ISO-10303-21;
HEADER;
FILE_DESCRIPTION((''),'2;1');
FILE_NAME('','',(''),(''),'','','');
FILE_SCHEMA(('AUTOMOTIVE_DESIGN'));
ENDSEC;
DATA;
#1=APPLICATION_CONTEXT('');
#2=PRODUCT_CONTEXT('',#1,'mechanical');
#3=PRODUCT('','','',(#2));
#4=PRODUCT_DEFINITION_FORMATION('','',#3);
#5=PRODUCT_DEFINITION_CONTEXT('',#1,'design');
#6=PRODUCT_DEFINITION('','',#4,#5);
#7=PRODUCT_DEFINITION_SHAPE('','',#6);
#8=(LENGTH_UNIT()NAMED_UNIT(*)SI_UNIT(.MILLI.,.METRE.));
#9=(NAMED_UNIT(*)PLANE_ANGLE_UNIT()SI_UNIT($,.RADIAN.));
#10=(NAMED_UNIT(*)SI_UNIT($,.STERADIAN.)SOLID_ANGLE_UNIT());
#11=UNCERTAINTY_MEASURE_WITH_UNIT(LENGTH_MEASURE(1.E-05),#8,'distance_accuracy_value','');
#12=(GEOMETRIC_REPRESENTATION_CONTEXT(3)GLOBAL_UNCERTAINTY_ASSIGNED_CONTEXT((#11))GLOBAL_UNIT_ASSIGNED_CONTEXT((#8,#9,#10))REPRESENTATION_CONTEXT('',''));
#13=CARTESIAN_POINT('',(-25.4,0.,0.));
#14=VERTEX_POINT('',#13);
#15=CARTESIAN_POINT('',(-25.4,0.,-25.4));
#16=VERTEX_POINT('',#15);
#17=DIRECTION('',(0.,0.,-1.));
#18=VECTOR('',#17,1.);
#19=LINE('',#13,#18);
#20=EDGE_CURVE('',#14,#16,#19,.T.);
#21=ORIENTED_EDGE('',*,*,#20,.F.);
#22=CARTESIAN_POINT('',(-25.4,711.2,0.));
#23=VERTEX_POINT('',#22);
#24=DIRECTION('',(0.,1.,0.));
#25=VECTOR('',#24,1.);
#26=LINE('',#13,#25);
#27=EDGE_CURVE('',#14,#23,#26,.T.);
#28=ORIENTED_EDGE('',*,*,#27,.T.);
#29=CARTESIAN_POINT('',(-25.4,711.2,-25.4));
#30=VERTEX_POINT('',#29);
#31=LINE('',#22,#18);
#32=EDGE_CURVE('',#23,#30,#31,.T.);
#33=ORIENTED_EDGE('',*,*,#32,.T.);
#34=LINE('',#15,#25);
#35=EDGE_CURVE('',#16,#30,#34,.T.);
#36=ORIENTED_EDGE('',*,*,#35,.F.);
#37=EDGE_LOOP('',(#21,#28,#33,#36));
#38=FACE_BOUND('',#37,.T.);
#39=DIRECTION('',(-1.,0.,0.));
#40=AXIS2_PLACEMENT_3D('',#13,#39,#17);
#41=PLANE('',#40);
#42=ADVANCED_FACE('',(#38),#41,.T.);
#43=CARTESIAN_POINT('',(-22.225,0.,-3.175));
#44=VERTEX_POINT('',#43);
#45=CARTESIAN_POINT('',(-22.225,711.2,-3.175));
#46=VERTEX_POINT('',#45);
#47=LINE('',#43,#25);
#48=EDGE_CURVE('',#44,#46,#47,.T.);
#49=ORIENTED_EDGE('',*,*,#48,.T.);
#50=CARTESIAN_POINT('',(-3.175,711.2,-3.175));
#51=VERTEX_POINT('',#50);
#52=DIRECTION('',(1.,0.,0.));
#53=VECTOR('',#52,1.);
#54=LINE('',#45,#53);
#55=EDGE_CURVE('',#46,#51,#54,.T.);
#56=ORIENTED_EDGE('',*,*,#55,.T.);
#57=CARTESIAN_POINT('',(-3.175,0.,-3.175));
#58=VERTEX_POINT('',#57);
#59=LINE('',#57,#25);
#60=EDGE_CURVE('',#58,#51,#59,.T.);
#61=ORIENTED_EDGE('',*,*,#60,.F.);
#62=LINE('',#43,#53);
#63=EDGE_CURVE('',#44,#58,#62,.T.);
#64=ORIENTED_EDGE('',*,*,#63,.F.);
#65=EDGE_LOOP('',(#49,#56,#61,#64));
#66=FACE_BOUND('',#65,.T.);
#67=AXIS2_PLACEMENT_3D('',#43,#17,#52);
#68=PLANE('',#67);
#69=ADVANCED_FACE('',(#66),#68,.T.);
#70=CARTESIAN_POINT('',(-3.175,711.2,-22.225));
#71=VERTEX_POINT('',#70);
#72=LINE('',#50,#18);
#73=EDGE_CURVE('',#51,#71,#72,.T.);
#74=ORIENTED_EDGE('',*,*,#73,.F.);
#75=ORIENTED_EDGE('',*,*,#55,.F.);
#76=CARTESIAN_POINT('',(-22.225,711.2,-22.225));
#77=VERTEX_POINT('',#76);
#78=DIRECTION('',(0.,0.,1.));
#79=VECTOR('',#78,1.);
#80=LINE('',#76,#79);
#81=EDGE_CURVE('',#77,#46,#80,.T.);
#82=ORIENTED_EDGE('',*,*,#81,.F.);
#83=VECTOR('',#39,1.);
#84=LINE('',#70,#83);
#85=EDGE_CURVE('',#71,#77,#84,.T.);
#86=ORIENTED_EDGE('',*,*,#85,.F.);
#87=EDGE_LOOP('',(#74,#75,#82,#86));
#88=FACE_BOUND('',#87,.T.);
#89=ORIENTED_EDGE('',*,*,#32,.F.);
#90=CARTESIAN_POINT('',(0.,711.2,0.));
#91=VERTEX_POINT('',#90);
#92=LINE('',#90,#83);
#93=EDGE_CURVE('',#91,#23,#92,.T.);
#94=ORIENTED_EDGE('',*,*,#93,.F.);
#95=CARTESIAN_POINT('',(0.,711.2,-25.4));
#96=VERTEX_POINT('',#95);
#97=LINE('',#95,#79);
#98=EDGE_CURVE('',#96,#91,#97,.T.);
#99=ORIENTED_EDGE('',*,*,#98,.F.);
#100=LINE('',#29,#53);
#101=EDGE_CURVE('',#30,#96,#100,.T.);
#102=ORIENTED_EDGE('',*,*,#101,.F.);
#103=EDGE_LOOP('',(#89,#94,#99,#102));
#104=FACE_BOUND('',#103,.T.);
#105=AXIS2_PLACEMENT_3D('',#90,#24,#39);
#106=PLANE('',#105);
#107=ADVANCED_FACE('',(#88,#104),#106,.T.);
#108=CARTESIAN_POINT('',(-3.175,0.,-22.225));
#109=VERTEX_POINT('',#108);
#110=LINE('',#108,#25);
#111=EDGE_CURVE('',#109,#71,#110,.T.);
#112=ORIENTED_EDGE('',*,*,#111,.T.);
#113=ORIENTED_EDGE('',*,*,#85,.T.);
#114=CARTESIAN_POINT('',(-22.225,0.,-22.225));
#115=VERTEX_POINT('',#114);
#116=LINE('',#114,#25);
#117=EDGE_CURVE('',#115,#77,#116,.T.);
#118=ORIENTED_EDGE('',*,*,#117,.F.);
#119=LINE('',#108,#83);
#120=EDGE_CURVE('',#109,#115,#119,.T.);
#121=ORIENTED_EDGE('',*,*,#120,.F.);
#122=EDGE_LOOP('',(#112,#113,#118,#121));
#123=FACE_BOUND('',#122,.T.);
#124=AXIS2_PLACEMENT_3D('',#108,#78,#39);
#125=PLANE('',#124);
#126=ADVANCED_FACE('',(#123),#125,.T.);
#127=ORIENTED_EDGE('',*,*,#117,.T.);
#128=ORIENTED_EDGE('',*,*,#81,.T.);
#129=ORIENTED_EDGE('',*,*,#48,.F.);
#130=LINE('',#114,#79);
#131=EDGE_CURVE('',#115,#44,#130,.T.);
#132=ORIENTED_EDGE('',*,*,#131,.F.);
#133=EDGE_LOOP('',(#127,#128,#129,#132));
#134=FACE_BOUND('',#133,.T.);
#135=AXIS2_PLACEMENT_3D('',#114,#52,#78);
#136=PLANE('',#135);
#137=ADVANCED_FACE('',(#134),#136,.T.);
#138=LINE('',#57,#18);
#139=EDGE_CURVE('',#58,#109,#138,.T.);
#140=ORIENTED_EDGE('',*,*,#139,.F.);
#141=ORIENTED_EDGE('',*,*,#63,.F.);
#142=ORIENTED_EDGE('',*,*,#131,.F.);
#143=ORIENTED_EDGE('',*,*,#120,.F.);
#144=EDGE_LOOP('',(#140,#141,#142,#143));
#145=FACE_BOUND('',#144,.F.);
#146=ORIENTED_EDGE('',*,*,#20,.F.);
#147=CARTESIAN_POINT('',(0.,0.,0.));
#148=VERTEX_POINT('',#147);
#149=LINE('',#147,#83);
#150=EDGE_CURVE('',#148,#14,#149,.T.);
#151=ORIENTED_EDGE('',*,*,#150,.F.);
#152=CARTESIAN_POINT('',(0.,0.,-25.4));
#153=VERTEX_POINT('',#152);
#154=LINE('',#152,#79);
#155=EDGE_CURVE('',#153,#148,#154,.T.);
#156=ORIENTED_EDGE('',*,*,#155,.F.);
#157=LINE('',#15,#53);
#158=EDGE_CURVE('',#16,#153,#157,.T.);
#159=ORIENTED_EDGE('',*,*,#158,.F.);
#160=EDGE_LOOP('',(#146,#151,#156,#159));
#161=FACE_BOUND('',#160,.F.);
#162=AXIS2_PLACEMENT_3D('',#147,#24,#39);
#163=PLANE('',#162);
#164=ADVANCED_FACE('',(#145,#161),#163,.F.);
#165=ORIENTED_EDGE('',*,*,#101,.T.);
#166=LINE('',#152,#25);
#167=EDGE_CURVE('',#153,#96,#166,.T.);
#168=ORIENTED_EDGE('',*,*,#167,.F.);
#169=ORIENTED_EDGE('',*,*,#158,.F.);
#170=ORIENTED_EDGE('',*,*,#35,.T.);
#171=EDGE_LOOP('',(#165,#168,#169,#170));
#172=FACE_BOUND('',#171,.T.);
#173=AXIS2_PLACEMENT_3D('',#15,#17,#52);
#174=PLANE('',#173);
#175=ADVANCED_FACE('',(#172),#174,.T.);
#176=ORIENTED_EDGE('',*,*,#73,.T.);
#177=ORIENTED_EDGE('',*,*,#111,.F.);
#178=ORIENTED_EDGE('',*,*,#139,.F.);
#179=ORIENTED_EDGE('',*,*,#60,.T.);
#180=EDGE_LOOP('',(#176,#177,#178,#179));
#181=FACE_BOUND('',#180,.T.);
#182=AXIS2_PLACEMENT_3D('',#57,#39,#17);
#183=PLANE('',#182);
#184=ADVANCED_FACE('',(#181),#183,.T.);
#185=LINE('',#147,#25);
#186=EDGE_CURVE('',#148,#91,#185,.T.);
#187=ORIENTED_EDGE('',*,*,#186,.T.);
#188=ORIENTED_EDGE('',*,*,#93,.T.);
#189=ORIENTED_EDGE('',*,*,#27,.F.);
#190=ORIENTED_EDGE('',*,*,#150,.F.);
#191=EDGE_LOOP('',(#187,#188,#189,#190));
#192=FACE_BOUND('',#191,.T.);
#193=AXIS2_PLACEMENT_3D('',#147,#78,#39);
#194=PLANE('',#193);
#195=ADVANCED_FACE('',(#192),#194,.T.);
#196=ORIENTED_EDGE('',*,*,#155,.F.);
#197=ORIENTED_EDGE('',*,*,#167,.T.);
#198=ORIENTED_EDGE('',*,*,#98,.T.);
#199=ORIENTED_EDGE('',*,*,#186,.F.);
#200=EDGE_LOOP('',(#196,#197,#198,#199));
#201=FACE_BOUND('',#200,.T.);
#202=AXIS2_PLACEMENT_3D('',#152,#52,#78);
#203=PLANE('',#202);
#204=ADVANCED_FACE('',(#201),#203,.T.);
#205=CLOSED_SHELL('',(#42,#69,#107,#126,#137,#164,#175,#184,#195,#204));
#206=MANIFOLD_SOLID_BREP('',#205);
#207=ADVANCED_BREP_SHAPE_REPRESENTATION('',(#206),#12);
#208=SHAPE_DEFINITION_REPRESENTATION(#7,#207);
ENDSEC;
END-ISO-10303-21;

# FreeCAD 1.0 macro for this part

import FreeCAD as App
import Part
import Sketcher
Q = App.Units.Quantity

doc = App.newDocument("Part")
body = doc.addObject("PartDesign::Body", "Body")

# Sketch on XZ plane
sketch1 = body.newObject("Sketcher::SketchObject", "Sketch")
sketch1.AttachmentSupport = (doc.getObject("XZ_Plane"), [""])
sketch1.MapMode = "FlatFace"
sketch1.addGeometry([
    Part.LineSegment(App.Vector(-25, 0, 0), App.Vector(0, 0, 0)),  # 0
    Part.LineSegment(App.Vector(0, 0, 0), App.Vector(0, -25, 0)),  # 1
    Part.LineSegment(App.Vector(0, -25, 0), App.Vector(-25, -25, 0)),  # 2
    Part.LineSegment(App.Vector(-25, -25, 0), App.Vector(-25, 0, 0)),  # 3
    Part.LineSegment(App.Vector(-3, -3, 0), App.Vector(-22, -3, 0)),  # 4
    Part.LineSegment(App.Vector(-22, -3, 0), App.Vector(-22, -22, 0)),  # 5
    Part.LineSegment(App.Vector(-22, -22, 0), App.Vector(-3, -22, 0)),  # 6
    Part.LineSegment(App.Vector(-3, -22, 0), App.Vector(-3, -3, 0)),  # 7
], False)
sketch1.addConstraint([
    Sketcher.Constraint("Coincident", 0, 2, 1, 1),
    Sketcher.Constraint("Coincident", 1, 2, 2, 1),
    Sketcher.Constraint("Coincident", 2, 2, 3, 1),
    Sketcher.Constraint("Coincident", 3, 2, 0, 1),
    Sketcher.Constraint("Coincident", 4, 2, 5, 1),
    Sketcher.Constraint("Coincident", 5, 2, 6, 1),
    Sketcher.Constraint("Coincident", 6, 2, 7, 1),
    Sketcher.Constraint("Coincident", 7, 2, 4, 1),
    Sketcher.Constraint("Horizontal", 0),
    Sketcher.Constraint("Vertical", 1),
    Sketcher.Constraint("Horizontal", 2),
    Sketcher.Constraint("Vertical", 3),
    Sketcher.Constraint("Horizontal", 4),
    Sketcher.Constraint("Vertical", 5),
    Sketcher.Constraint("Horizontal", 6),
    Sketcher.Constraint("Vertical", 7),
    Sketcher.Constraint("Coincident", 0, 2, -1, 1),
    Sketcher.Constraint("Equal", 2, 1),
    Sketcher.Constraint("Equal", 6, 5),
    Sketcher.Constraint("DistanceX", 0, 1, 0, 2, Q("1 in")),
    Sketcher.Constraint("DistanceY", 4, 2, -1, 1, Q("0.125 in")),
    Sketcher.Constraint("DistanceX", 6, 2, -1, 1, Q("0.125 in")),
    Sketcher.Constraint("DistanceX", 3, 2, 4, 2, Q("0.125 in")),
])
pad1 = body.newObject("PartDesign::Pad", "Pad")
pad1.Profile = sketch1
pad1.Length = Q("28 in")
pad1.Reversed = True

doc.recompute()
